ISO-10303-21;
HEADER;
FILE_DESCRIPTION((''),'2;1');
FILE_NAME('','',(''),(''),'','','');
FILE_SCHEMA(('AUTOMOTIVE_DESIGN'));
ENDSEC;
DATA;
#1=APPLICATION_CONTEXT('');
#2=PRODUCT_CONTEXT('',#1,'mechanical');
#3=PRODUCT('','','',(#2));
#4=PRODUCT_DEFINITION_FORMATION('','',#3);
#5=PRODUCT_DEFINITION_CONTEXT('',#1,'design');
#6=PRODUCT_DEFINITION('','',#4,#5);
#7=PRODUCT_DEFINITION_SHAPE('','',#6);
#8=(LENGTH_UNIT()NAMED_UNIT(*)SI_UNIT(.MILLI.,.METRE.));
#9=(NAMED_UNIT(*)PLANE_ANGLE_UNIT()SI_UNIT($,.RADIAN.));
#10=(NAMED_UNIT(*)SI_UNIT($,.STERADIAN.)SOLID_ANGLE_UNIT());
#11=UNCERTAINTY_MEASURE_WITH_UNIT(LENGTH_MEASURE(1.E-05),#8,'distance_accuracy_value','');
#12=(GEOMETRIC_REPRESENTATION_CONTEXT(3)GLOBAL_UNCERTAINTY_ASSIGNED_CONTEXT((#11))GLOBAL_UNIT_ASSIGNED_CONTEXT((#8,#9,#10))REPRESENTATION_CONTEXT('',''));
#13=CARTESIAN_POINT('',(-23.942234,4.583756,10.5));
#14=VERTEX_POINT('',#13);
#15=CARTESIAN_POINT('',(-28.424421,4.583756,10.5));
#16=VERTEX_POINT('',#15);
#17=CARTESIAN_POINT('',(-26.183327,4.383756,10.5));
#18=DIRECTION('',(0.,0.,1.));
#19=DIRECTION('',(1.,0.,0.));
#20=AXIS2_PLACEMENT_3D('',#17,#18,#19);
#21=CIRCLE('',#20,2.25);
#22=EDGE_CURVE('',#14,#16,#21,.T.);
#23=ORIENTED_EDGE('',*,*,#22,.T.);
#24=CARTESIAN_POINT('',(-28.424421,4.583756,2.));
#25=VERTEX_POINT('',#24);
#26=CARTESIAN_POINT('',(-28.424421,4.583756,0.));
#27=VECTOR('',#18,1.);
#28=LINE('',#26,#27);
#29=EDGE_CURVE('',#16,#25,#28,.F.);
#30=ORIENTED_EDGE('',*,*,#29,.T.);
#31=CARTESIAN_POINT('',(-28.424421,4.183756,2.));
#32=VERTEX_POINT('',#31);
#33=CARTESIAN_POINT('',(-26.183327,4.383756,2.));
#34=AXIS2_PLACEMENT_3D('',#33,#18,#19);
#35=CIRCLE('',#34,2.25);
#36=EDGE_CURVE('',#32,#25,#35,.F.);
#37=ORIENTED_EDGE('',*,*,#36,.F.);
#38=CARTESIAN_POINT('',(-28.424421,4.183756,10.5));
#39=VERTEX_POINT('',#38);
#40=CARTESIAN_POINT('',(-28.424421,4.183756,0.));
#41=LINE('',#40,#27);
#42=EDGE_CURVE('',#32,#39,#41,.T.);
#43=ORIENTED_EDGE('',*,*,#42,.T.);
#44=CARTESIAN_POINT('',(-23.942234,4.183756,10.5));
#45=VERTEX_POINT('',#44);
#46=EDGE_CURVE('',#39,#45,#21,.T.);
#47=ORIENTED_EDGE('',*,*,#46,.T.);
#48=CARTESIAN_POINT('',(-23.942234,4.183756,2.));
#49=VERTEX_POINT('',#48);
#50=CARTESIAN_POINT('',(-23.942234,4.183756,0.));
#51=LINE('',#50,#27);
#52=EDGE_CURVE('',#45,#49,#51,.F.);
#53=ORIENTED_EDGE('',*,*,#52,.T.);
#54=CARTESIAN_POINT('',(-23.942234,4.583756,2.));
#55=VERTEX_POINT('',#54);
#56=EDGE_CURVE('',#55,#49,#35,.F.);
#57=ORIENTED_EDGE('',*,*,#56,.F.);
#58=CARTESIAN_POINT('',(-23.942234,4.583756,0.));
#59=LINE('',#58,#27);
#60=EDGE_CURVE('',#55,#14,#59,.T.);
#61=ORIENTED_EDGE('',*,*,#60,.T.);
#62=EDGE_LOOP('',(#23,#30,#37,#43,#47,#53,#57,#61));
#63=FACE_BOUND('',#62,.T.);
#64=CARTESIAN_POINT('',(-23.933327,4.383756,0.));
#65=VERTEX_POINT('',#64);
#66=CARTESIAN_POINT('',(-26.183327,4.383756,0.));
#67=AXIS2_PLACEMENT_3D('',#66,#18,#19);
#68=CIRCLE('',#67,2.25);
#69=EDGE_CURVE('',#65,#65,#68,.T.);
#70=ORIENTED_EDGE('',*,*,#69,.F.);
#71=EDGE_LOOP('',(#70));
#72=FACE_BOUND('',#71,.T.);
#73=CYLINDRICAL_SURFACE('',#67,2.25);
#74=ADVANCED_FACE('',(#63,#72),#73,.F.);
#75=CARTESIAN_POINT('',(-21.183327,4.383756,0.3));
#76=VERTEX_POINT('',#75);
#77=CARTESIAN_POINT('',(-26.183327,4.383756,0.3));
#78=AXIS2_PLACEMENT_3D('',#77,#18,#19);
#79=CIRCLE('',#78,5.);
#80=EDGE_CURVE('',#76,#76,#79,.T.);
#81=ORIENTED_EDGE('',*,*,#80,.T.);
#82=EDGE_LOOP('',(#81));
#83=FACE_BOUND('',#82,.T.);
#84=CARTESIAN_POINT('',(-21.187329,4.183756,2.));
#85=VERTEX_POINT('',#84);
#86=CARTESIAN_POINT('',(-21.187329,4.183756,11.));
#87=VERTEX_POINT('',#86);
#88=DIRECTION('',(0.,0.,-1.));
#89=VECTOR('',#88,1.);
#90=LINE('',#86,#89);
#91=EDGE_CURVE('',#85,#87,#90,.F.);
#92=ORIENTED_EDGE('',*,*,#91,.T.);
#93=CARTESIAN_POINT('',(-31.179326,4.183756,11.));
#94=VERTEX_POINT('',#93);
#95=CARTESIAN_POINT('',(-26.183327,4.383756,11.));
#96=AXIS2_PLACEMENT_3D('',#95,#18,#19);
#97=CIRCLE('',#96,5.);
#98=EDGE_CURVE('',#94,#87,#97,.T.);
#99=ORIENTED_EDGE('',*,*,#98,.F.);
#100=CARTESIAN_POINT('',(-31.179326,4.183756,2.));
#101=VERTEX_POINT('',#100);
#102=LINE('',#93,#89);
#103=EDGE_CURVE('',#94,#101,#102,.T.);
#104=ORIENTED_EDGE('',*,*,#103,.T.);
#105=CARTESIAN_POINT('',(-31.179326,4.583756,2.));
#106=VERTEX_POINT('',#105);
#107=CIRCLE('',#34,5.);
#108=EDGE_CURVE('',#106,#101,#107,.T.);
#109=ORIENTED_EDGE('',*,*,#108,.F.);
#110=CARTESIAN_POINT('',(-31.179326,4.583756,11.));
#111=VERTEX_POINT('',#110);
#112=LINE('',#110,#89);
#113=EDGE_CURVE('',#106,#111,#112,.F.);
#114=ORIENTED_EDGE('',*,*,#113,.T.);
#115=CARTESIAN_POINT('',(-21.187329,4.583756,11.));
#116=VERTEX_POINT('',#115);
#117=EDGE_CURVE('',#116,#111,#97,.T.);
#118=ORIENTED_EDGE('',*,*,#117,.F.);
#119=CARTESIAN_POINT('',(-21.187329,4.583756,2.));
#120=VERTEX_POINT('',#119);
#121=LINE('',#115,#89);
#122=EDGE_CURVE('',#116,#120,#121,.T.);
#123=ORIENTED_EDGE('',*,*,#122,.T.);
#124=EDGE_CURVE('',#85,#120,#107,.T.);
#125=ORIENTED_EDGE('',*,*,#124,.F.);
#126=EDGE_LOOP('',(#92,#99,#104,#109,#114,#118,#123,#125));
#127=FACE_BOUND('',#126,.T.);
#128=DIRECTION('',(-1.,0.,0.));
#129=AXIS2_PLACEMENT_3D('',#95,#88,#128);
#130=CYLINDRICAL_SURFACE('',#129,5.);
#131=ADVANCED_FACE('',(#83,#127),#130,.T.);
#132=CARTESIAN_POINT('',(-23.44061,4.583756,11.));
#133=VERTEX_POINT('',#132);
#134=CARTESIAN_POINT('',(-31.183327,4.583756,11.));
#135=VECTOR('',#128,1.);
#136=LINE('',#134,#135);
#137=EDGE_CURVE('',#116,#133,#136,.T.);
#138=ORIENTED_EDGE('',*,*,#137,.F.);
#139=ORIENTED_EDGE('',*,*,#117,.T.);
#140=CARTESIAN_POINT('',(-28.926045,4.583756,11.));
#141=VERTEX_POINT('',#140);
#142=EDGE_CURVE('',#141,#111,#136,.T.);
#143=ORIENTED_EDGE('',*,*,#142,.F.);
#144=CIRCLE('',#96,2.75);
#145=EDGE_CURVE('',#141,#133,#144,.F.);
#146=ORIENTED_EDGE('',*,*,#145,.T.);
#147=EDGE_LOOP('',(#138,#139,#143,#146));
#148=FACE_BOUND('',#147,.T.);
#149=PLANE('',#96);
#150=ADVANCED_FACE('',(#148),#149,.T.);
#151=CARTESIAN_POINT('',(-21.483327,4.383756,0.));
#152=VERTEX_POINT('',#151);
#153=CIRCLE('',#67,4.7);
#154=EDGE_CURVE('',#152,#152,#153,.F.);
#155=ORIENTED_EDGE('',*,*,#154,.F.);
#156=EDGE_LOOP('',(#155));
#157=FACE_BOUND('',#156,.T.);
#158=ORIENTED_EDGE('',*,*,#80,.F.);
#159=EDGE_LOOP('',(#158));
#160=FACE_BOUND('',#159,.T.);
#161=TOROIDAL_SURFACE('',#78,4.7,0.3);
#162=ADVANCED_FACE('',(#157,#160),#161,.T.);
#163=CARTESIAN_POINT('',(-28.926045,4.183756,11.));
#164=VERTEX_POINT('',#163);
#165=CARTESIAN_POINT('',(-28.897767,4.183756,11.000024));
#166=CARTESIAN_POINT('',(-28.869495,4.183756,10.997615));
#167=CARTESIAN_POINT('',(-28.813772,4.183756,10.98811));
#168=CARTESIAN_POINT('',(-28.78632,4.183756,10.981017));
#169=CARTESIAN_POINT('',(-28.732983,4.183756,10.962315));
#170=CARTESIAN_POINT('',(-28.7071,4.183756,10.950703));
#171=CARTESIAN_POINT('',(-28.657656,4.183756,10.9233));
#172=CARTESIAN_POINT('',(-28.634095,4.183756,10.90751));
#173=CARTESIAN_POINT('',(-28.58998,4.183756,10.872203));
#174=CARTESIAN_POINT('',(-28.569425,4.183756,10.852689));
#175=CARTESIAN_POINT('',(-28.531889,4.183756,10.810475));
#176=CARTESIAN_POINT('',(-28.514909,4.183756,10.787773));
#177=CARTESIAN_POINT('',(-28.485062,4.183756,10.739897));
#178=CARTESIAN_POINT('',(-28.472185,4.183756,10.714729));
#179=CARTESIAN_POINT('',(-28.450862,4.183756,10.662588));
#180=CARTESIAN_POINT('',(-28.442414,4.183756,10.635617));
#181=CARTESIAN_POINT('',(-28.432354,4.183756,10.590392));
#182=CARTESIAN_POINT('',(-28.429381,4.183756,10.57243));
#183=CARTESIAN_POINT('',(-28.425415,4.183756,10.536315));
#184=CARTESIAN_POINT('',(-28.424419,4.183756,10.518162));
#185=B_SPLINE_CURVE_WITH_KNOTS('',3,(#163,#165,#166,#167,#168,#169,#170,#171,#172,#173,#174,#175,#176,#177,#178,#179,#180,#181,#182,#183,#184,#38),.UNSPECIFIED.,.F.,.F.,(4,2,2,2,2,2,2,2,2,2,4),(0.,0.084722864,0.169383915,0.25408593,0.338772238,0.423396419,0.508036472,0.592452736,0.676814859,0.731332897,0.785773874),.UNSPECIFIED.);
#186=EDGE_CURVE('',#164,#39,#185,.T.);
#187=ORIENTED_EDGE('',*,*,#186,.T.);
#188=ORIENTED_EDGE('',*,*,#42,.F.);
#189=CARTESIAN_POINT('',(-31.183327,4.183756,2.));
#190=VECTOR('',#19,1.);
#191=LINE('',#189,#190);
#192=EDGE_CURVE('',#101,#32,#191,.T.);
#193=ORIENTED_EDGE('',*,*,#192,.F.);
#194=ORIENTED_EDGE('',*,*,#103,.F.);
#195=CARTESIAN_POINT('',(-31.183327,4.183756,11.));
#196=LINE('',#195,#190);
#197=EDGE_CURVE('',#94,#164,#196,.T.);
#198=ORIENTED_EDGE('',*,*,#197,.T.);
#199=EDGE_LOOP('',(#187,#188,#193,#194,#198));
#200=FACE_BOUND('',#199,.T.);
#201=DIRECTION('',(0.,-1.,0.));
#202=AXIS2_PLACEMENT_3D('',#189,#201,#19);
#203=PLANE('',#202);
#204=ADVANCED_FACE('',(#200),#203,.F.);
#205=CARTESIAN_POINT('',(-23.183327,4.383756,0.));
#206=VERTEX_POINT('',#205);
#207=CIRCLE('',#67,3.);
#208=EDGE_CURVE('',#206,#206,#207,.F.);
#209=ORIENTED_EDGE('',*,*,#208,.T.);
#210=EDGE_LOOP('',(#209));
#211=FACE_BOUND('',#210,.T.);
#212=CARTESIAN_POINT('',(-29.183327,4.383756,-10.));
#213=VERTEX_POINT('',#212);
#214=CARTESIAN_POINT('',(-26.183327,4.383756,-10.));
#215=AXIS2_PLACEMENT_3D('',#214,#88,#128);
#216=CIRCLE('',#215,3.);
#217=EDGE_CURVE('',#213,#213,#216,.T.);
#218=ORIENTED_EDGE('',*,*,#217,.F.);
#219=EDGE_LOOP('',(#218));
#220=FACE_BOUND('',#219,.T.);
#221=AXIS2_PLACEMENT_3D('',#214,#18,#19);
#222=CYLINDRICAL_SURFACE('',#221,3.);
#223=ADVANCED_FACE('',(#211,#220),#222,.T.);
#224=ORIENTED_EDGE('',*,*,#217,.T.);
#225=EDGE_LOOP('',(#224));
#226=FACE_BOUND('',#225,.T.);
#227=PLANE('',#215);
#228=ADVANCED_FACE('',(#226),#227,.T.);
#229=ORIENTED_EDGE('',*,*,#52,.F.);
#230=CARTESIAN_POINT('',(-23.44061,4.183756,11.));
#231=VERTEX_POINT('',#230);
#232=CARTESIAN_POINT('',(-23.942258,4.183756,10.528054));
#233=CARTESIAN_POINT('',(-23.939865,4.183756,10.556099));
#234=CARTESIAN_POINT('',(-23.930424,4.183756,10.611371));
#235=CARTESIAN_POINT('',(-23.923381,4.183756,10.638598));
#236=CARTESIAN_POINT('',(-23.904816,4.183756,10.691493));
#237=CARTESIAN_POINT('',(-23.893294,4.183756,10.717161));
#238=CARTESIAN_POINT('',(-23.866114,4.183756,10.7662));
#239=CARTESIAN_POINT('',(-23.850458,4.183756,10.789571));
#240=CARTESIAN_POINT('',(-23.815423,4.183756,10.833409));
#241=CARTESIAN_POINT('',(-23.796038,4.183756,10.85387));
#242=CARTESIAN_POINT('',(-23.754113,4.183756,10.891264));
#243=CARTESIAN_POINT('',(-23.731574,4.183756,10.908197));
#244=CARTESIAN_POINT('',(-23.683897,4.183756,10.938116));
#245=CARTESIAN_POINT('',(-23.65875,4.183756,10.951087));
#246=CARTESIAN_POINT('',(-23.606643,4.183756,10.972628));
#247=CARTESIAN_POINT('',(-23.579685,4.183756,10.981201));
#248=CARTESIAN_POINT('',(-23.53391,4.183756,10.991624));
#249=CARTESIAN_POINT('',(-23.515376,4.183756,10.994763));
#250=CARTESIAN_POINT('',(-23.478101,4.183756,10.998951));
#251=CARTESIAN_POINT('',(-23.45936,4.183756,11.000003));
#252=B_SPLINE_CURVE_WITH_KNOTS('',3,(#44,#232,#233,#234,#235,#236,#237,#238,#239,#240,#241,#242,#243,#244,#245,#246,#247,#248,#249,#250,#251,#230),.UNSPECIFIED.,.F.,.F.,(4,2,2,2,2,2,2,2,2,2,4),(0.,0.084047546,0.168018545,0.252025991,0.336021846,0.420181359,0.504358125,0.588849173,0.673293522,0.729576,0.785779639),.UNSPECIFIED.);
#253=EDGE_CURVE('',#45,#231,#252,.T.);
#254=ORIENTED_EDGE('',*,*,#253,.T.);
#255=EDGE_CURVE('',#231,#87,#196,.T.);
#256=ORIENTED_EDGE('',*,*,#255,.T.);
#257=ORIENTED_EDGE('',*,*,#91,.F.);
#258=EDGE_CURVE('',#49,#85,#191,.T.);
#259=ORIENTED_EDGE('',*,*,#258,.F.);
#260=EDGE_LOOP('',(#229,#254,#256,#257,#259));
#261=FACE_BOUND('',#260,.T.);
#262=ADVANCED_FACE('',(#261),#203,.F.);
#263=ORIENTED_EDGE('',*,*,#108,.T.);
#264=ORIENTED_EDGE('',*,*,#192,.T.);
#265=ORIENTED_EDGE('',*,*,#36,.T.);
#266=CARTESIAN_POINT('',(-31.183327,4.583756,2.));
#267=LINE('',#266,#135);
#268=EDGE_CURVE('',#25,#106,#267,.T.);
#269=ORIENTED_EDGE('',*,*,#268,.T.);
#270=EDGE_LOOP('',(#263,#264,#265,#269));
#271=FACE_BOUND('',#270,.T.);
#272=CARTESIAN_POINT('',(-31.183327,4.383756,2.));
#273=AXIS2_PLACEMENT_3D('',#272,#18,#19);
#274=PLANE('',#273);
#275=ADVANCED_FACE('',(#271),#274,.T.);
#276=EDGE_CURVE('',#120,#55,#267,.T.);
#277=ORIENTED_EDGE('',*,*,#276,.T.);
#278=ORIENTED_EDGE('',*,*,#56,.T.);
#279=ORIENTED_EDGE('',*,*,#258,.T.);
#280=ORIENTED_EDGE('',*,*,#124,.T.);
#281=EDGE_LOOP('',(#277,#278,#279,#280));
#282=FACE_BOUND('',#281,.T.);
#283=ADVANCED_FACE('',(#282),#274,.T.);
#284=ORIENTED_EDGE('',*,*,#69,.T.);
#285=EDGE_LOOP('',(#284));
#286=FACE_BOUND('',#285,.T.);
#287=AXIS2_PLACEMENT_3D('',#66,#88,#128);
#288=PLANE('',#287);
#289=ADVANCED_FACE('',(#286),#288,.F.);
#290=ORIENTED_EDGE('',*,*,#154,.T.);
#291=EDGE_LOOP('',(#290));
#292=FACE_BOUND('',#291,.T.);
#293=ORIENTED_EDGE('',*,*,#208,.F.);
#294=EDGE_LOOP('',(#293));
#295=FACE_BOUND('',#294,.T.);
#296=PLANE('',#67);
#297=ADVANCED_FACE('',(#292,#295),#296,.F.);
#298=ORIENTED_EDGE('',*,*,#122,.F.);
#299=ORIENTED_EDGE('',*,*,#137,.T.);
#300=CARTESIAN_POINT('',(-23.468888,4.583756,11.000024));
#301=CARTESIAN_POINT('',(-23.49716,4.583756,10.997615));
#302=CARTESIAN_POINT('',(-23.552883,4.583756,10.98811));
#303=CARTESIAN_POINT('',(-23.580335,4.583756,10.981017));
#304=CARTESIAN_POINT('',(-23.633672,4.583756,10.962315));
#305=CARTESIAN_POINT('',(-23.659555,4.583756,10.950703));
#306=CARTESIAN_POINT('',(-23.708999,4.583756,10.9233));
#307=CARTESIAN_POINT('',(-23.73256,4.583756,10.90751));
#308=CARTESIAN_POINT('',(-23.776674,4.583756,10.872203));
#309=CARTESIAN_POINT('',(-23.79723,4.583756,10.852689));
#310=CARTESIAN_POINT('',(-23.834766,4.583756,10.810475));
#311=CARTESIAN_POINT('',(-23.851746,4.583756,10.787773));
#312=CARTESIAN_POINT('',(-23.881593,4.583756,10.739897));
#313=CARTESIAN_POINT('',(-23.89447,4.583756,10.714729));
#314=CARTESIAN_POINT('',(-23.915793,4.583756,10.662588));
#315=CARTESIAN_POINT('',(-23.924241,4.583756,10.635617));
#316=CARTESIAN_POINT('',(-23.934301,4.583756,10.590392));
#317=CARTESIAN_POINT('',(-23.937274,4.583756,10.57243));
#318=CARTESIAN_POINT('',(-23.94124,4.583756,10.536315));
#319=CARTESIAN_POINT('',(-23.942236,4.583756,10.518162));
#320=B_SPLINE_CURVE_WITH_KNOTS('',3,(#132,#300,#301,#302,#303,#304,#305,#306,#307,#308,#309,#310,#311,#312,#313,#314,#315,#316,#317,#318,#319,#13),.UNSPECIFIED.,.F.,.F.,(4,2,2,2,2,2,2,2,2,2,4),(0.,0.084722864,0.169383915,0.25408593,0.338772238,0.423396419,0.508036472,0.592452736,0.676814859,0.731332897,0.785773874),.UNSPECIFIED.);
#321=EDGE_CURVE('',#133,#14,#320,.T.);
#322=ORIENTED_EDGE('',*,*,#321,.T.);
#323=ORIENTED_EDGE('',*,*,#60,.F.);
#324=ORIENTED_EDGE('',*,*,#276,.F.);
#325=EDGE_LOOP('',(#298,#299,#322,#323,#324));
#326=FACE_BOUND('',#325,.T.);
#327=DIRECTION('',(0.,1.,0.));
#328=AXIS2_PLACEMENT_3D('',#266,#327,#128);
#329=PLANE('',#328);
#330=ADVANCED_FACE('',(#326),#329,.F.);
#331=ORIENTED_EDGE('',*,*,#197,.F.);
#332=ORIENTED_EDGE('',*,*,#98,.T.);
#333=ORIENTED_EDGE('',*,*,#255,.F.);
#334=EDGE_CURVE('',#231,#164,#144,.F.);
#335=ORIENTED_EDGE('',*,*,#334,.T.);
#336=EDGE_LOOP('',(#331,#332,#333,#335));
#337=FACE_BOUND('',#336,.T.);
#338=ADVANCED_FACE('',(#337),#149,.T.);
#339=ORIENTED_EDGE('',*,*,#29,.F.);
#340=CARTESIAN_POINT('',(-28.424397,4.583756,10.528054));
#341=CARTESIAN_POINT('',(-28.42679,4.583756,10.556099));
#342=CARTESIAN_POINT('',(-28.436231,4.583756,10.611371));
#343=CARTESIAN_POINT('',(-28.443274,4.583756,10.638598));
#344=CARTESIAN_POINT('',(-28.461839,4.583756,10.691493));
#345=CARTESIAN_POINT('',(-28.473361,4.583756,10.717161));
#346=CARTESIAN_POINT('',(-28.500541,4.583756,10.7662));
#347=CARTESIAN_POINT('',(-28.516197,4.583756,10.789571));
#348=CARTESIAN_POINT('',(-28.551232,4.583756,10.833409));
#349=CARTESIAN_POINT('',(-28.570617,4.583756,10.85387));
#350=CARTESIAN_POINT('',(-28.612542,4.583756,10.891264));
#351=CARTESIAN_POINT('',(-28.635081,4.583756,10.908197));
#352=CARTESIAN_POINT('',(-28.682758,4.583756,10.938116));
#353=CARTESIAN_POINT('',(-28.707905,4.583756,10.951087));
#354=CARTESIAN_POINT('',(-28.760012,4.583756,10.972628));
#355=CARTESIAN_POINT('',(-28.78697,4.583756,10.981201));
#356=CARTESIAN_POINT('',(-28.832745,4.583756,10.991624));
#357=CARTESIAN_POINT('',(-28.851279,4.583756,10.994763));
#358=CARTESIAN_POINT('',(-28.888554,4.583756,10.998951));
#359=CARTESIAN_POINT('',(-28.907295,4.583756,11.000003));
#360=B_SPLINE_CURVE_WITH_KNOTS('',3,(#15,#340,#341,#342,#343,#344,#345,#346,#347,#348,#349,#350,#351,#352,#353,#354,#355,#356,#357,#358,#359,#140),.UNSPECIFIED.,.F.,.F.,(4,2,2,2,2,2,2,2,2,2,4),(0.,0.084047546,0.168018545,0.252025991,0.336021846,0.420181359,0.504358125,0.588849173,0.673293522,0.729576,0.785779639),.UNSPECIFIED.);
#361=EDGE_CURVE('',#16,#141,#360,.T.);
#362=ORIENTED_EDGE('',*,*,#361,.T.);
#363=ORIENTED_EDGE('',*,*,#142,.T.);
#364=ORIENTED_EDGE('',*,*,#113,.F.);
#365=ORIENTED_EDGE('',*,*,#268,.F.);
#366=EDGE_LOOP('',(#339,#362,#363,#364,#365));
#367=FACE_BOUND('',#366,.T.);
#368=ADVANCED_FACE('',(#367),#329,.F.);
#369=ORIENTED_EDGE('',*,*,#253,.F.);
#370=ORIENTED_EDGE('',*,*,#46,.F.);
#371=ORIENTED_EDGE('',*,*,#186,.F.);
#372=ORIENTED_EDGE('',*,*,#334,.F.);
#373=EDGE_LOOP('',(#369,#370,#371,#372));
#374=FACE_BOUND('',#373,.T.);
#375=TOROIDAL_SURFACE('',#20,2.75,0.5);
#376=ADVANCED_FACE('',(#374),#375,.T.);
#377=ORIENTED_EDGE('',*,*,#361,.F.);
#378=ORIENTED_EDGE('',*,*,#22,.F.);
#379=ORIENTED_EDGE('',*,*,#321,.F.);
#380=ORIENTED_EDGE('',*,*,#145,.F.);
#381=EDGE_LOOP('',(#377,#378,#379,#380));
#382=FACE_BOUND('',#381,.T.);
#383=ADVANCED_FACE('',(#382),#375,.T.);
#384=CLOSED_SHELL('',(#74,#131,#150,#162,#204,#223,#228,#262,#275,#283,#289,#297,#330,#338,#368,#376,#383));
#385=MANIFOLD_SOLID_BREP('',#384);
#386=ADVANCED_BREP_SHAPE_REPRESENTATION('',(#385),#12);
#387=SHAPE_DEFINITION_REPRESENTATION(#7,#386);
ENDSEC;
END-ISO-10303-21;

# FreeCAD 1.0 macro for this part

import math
import FreeCAD as App
import Part
import Sketcher


def edges_at(feature, points):
    """Names of the edges that pass closest to the given points."""
    edges = feature.Shape.Edges
    near = lambda p: min(range(len(edges)), key=lambda i: edges[i].distToShape(Part.Vertex(*p))[0])
    return sorted({f"Edge{near(p) + 1}" for p in points})

doc = App.newDocument("Part")
body = doc.addObject("PartDesign::Body", "Body")

# Sketch on XY plane
sketch1 = body.newObject("Sketcher::SketchObject", "Sketch")
sketch1.AttachmentSupport = (doc.getObject("XY_Plane"), [""])
sketch1.MapMode = "FlatFace"
sketch1.addGeometry(Part.Circle(App.Vector(-26.183327, 4.383756, 0), App.Vector(0, 0, 1), 5), False)
sketch1.addConstraint(Sketcher.Constraint("Diameter", 0, 10.0))
sketch1.addConstraint(Sketcher.Constraint("DistanceX", 0, 3, -1, 1, 26.183327))
sketch1.addConstraint(Sketcher.Constraint("DistanceY", -1, 1, 0, 3, 4.383756))
pad1 = body.newObject("PartDesign::Pad", "Pad")
pad1.Profile = sketch1
pad1.Length = 11

# Sketch on XY plane
sketch2 = body.newObject("Sketcher::SketchObject", "Sketch001")
sketch2.AttachmentSupport = (doc.getObject("XY_Plane"), [""])
sketch2.MapMode = "FlatFace"
sketch2.AttachmentOffset = App.Placement(App.Vector(0, 0, 11), App.Rotation())
sketch2.addGeometry(Part.Circle(App.Vector(-26.183327, 4.383756, 0), App.Vector(0, 0, 1), 2.25), False)
sketch2.addConstraint(Sketcher.Constraint("Diameter", 0, 4.5))
sketch2.addConstraint(Sketcher.Constraint("DistanceX", 0, 3, -1, 1, 26.183327))
sketch2.addConstraint(Sketcher.Constraint("DistanceY", -1, 1, 0, 3, 4.383756))
pocket1 = body.newObject("PartDesign::Pocket", "Pocket")
pocket1.Profile = sketch2
pocket1.Length = 11

# Sketch on XY plane
sketch3 = body.newObject("Sketcher::SketchObject", "Sketch002")
sketch3.AttachmentSupport = (doc.getObject("XY_Plane"), [""])
sketch3.MapMode = "FlatFace"
sketch3.addGeometry(Part.Circle(App.Vector(-26.183327, 4.383756, 0), App.Vector(0, 0, 1), 3), False)
sketch3.addConstraint(Sketcher.Constraint("Diameter", 0, 6.0))
sketch3.addConstraint(Sketcher.Constraint("DistanceX", 0, 3, -1, 1, 26.183327))
sketch3.addConstraint(Sketcher.Constraint("DistanceY", -1, 1, 0, 3, 4.383756))
pad2 = body.newObject("PartDesign::Pad", "Pad001")
pad2.Profile = sketch3
pad2.Length = 10
pad2.Reversed = True

# Sketch on XY plane
sketch4 = body.newObject("Sketcher::SketchObject", "Sketch003")
sketch4.AttachmentSupport = (doc.getObject("XY_Plane"), [""])
sketch4.MapMode = "FlatFace"
sketch4.AttachmentOffset = App.Placement(App.Vector(0, 0, 11), App.Rotation())
sketch4.addGeometry(Part.LineSegment(App.Vector(-21.183327, 4.583756, 0), App.Vector(-31.183327, 4.583756, 0)), False)
sketch4.addGeometry(Part.ArcOfCircle(Part.Circle(App.Vector(-31.183327, 4.383756, 0), App.Vector(0, 0, 1), 0.2), math.radians(90), math.radians(270)), False)
sketch4.addGeometry(Part.LineSegment(App.Vector(-31.183327, 4.183756, 0), App.Vector(-21.183327, 4.183756, 0)), False)
sketch4.addGeometry(Part.ArcOfCircle(Part.Circle(App.Vector(-21.183327, 4.383756, 0), App.Vector(0, 0, 1), 0.2), math.radians(-90), math.radians(90)), False)
sketch4.addConstraint(Sketcher.Constraint("Tangent", 0, 2, 1, 1))
sketch4.addConstraint(Sketcher.Constraint("Tangent", 1, 2, 2, 1))
sketch4.addConstraint(Sketcher.Constraint("Tangent", 2, 2, 3, 1))
sketch4.addConstraint(Sketcher.Constraint("Tangent", 3, 2, 0, 1))
sketch4.addConstraint(Sketcher.Constraint("Horizontal", 0))
sketch4.addConstraint(Sketcher.Constraint("Horizontal", 2))
sketch4.addConstraint(Sketcher.Constraint("Radius", 1, 0.2))
sketch4.addConstraint(Sketcher.Constraint("DistanceX", 0, 2, 0, 1, 10.0))
sketch4.addConstraint(Sketcher.Constraint("DistanceX", 1, 3, -1, 1, 31.183327))
sketch4.addConstraint(Sketcher.Constraint("DistanceY", -1, 1, 1, 3, 4.383756))
pocket2 = body.newObject("PartDesign::Pocket", "Pocket001")
pocket2.Profile = sketch4
pocket2.Length = 9
doc.recompute()

fillet = body.newObject("PartDesign::Fillet", "Fillet")
fillet.Base = (pocket2, edges_at(pocket2, [(-26.183, 2.134, 11), (-26.183, 6.634, 11)]))
fillet.Radius = 0.5
doc.recompute()

fillet2 = body.newObject("PartDesign::Fillet", "Fillet001")
fillet2.Base = (fillet, edges_at(fillet, [(-31.183, 4.384, 0)]))
fillet2.Radius = 0.3

doc.recompute()
